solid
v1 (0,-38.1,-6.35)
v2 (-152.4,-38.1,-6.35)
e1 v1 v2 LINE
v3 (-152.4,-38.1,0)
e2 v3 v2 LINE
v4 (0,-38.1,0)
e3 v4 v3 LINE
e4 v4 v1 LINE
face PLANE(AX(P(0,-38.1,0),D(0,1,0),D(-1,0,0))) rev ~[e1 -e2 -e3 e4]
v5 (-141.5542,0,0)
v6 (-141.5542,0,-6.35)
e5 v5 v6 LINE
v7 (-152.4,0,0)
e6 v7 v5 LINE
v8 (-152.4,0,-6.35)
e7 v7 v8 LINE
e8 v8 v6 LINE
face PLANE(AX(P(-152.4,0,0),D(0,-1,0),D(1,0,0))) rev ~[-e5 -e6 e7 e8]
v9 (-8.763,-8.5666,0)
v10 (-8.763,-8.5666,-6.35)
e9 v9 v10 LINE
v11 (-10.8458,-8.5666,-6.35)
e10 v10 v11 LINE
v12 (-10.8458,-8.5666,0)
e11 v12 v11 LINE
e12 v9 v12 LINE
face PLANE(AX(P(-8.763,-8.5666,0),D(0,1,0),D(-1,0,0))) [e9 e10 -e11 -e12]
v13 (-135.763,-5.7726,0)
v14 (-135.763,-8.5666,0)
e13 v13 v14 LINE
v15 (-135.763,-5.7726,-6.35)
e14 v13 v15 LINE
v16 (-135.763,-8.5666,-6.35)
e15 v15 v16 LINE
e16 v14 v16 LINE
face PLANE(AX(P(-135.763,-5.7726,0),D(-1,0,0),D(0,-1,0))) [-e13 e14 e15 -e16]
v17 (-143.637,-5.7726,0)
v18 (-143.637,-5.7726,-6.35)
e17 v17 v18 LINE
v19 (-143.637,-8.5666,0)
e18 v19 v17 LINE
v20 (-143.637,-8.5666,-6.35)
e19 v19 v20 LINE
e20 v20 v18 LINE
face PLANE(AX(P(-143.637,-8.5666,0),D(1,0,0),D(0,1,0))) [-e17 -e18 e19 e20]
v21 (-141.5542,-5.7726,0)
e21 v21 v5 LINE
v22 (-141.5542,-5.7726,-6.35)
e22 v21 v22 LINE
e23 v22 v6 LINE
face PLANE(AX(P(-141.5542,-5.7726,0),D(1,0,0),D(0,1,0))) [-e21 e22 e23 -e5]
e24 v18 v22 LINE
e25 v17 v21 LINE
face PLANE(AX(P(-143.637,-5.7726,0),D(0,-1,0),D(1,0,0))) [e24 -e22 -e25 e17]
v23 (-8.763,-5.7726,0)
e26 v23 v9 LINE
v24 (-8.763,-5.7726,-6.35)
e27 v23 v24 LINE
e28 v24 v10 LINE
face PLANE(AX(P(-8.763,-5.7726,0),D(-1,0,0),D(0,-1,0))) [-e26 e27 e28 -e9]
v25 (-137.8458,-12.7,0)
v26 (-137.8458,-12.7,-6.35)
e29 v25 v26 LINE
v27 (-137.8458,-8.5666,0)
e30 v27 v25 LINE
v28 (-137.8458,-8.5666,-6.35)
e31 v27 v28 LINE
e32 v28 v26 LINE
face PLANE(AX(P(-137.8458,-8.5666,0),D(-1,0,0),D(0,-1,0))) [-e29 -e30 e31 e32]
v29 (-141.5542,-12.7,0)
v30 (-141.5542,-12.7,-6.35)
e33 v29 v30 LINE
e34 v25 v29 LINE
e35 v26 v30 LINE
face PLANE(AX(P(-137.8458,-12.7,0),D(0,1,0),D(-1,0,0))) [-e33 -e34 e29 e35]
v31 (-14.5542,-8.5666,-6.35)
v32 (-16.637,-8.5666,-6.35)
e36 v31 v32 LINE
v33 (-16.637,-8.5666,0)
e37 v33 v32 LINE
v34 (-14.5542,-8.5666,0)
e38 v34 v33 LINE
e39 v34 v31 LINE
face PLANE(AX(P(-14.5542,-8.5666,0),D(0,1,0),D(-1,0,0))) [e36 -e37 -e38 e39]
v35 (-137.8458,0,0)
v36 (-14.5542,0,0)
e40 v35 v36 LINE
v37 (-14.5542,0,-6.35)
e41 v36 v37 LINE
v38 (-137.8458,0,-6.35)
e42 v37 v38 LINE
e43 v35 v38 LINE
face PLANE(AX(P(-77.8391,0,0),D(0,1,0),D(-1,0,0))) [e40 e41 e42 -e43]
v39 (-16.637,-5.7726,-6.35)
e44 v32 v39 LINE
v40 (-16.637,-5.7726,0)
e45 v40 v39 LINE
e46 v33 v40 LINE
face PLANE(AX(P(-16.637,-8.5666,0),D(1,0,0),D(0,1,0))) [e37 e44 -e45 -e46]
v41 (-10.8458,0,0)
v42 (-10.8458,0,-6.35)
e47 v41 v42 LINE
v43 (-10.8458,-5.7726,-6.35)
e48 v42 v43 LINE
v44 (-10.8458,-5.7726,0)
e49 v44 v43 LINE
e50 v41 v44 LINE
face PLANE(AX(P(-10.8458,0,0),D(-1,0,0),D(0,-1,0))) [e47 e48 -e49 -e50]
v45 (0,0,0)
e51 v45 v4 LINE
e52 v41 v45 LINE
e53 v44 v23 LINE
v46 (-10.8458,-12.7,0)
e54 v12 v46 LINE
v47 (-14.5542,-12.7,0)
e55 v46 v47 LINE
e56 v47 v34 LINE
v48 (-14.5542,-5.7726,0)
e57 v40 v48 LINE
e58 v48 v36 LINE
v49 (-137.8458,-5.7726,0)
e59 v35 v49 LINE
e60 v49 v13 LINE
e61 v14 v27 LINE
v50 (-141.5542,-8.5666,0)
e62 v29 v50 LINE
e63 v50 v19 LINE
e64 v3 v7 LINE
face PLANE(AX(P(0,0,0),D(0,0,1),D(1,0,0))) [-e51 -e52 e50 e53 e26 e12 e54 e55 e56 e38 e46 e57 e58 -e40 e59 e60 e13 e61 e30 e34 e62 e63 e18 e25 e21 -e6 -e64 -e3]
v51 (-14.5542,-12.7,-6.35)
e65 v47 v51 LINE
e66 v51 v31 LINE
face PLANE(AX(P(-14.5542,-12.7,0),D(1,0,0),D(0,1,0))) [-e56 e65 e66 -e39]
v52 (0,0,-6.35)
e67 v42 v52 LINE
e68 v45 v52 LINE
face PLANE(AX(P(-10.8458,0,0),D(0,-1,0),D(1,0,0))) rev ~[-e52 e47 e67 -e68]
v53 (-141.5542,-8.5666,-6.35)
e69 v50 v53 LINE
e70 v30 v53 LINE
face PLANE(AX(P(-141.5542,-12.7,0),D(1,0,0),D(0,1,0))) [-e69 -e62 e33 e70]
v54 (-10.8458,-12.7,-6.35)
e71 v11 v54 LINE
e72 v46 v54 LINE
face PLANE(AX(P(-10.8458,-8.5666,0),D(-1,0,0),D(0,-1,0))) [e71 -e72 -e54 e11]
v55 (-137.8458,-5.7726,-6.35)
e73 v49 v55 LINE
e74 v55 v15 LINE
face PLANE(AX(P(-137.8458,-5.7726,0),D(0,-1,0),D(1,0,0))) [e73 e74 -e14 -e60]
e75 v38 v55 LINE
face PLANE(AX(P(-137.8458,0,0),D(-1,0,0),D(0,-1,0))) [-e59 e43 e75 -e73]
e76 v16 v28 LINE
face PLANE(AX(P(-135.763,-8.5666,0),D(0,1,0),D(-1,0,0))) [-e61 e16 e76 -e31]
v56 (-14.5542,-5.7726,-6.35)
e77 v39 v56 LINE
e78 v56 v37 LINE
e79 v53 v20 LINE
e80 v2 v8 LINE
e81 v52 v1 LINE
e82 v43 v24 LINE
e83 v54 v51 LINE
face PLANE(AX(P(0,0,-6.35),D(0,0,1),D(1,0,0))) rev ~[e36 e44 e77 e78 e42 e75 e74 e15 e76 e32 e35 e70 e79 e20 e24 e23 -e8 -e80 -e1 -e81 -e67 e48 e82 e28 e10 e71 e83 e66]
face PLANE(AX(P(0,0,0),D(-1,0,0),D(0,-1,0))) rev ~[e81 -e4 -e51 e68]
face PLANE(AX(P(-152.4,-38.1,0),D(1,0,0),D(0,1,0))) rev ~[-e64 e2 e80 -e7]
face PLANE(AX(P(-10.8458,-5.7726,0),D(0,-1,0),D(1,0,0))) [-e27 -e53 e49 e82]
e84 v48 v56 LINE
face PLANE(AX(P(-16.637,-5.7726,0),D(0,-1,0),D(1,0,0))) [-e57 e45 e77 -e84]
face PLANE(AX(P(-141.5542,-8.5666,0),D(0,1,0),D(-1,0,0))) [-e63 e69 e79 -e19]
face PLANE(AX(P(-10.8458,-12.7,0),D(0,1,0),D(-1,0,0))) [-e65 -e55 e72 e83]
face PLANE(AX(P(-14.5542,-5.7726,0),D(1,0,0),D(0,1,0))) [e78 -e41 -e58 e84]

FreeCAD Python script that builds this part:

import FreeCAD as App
import Part
import Sketcher

V = App.Vector
Q = App.Units.Quantity


def add_polygon(sketch, points):
    """Adds a closed chain of lines whose ends are joined by coincident constraints."""
    first, n = sketch.GeometryCount, len(points)
    for a, b in zip(points, points[1:] + points[:1]):
        sketch.addGeometry(Part.LineSegment(App.Vector(*a, 0), App.Vector(*b, 0)), False)
    for i in range(n):
        sketch.addConstraint(Sketcher.Constraint("Coincident", first + i, 2, first + (i + 1) % n, 1))

doc = App.newDocument("Part")
body = doc.addObject("PartDesign::Body", "Body")

# Sketch on XY plane
sketch1 = body.newObject("Sketcher::SketchObject", "Sketch")
sketch1.AttachmentSupport = (doc.getObject("XY_Plane"), [""])
sketch1.MapMode = "FlatFace"
add_polygon(sketch1, [(-137.8458, 0), (-137.8458, -5.7726), (-135.763, -5.7726), (-135.763, -8.5666), (-137.8458, -8.5666), (-137.8458, -12.7), (-141.5542, -12.7), (-141.5542, -8.5666), (-143.637, -8.5666), (-143.637, -5.7726), (-141.5542, -5.7726), (-141.5542, 0), (-152.4, 0), (-152.4, -38.1), (0, -38.1), (0, 0), (-10.8458, 0), (-10.8458, -5.7726), (-8.763, -5.7726), (-8.763, -8.5666), (-10.8458, -8.5666), (-10.8458, -12.7), (-14.5542, -12.7), (-14.5542, -8.5666), (-16.637, -8.5666), (-16.637, -5.7726), (-14.5542, -5.7726), (-14.5542, 0)])  # lines 0-27
sketch1.addConstraint(Sketcher.Constraint("Vertical", 0))
sketch1.addConstraint(Sketcher.Constraint("Horizontal", 1))
sketch1.addConstraint(Sketcher.Constraint("Vertical", 2))
sketch1.addConstraint(Sketcher.Constraint("Horizontal", 3))
sketch1.addConstraint(Sketcher.Constraint("Vertical", 4))
sketch1.addConstraint(Sketcher.Constraint("Horizontal", 5))
sketch1.addConstraint(Sketcher.Constraint("Vertical", 6))
sketch1.addConstraint(Sketcher.Constraint("Horizontal", 7))
sketch1.addConstraint(Sketcher.Constraint("Vertical", 8))
sketch1.addConstraint(Sketcher.Constraint("Horizontal", 9))
sketch1.addConstraint(Sketcher.Constraint("Vertical", 10))
sketch1.addConstraint(Sketcher.Constraint("Horizontal", 11))
sketch1.addConstraint(Sketcher.Constraint("Vertical", 12))
sketch1.addConstraint(Sketcher.Constraint("Horizontal", 13))
sketch1.addConstraint(Sketcher.Constraint("Vertical", 14))
sketch1.addConstraint(Sketcher.Constraint("Horizontal", 15))
sketch1.addConstraint(Sketcher.Constraint("Vertical", 16))
sketch1.addConstraint(Sketcher.Constraint("Horizontal", 17))
sketch1.addConstraint(Sketcher.Constraint("Vertical", 18))
sketch1.addConstraint(Sketcher.Constraint("Horizontal", 19))
sketch1.addConstraint(Sketcher.Constraint("Vertical", 20))
sketch1.addConstraint(Sketcher.Constraint("Horizontal", 21))
sketch1.addConstraint(Sketcher.Constraint("Vertical", 22))
sketch1.addConstraint(Sketcher.Constraint("Horizontal", 23))
sketch1.addConstraint(Sketcher.Constraint("Vertical", 24))
sketch1.addConstraint(Sketcher.Constraint("Horizontal", 25))
sketch1.addConstraint(Sketcher.Constraint("Vertical", 26))
sketch1.addConstraint(Sketcher.Constraint("Horizontal", 27))
sketch1.addConstraint(Sketcher.Constraint("Coincident", 14, 2, -1, 1))
sketch1.addConstraint(Sketcher.Constraint("PointOnObject", 10, 2, -1))
sketch1.addConstraint(Sketcher.Constraint("PointOnObject", 26, 2, -1))
sketch1.addConstraint(Sketcher.Constraint("Horizontal", 3, 2, 6, 2))
sketch1.addConstraint(Sketcher.Constraint("Horizontal", 1, 2, 8, 2))
sketch1.addConstraint(Sketcher.Constraint("Horizontal", 9, 2, 16, 2))
sketch1.addConstraint(Sketcher.Constraint("Horizontal", 7, 2, 18, 2))
sketch1.addConstraint(Sketcher.Constraint("Horizontal", 5, 2, 20, 2))
sketch1.addConstraint(Sketcher.Constraint("Horizontal", 19, 2, 22, 2))
sketch1.addConstraint(Sketcher.Constraint("Horizontal", 17, 2, 24, 2))
sketch1.addConstraint(Sketcher.Constraint("Vertical", 0, 2, 3, 2))
sketch1.addConstraint(Sketcher.Constraint("Vertical", 6, 2, 9, 2))
sketch1.addConstraint(Sketcher.Constraint("Vertical", 16, 2, 19, 2))
sketch1.addConstraint(Sketcher.Constraint("Vertical", 22, 2, 25, 2))
sketch1.addConstraint(Sketcher.Constraint("Equal", 3, 7))
sketch1.addConstraint(Sketcher.Constraint("Equal", 11, 15))
sketch1.addConstraint(Sketcher.Constraint("Equal", 9, 17))
sketch1.addConstraint(Sketcher.Constraint("Equal", 5, 21))
sketch1.addConstraint(Sketcher.Constraint("Equal", 19, 23))
sketch1.addConstraint(Sketcher.Constraint("DistanceY", 12, 2, 12, 1, Q("1.5 in")))
sketch1.addConstraint(Sketcher.Constraint("DistanceY", 2, 2, 2, 1, Q("0.11 in")))
sketch1.addConstraint(Sketcher.Constraint("DistanceY", 4, 2, -1, 1, Q("0.5 in")))
sketch1.addConstraint(Sketcher.Constraint("DistanceX", 1, 1, 1, 2, Q("0.082 in")))
sketch1.addConstraint(Sketcher.Constraint("DistanceX", 13, 1, 13, 2, Q("6 in")))
sketch1.addConstraint(Sketcher.Constraint("DistanceX", 0, 2, 15, 2, Q("5 in")))
sketch1.addConstraint(Sketcher.Constraint("DistanceX", 5, 2, 5, 1, Q("0.146 in")))
sketch1.addConstraint(Sketcher.Constraint("DistanceY", 0, 2, 0, 1, Q("5.7726 mm")))
pad1 = body.newObject("PartDesign::Pad", "Pad")
pad1.Profile = sketch1
pad1.Length = Q("0.25 in")
pad1.Reversed = True

doc.recompute()
